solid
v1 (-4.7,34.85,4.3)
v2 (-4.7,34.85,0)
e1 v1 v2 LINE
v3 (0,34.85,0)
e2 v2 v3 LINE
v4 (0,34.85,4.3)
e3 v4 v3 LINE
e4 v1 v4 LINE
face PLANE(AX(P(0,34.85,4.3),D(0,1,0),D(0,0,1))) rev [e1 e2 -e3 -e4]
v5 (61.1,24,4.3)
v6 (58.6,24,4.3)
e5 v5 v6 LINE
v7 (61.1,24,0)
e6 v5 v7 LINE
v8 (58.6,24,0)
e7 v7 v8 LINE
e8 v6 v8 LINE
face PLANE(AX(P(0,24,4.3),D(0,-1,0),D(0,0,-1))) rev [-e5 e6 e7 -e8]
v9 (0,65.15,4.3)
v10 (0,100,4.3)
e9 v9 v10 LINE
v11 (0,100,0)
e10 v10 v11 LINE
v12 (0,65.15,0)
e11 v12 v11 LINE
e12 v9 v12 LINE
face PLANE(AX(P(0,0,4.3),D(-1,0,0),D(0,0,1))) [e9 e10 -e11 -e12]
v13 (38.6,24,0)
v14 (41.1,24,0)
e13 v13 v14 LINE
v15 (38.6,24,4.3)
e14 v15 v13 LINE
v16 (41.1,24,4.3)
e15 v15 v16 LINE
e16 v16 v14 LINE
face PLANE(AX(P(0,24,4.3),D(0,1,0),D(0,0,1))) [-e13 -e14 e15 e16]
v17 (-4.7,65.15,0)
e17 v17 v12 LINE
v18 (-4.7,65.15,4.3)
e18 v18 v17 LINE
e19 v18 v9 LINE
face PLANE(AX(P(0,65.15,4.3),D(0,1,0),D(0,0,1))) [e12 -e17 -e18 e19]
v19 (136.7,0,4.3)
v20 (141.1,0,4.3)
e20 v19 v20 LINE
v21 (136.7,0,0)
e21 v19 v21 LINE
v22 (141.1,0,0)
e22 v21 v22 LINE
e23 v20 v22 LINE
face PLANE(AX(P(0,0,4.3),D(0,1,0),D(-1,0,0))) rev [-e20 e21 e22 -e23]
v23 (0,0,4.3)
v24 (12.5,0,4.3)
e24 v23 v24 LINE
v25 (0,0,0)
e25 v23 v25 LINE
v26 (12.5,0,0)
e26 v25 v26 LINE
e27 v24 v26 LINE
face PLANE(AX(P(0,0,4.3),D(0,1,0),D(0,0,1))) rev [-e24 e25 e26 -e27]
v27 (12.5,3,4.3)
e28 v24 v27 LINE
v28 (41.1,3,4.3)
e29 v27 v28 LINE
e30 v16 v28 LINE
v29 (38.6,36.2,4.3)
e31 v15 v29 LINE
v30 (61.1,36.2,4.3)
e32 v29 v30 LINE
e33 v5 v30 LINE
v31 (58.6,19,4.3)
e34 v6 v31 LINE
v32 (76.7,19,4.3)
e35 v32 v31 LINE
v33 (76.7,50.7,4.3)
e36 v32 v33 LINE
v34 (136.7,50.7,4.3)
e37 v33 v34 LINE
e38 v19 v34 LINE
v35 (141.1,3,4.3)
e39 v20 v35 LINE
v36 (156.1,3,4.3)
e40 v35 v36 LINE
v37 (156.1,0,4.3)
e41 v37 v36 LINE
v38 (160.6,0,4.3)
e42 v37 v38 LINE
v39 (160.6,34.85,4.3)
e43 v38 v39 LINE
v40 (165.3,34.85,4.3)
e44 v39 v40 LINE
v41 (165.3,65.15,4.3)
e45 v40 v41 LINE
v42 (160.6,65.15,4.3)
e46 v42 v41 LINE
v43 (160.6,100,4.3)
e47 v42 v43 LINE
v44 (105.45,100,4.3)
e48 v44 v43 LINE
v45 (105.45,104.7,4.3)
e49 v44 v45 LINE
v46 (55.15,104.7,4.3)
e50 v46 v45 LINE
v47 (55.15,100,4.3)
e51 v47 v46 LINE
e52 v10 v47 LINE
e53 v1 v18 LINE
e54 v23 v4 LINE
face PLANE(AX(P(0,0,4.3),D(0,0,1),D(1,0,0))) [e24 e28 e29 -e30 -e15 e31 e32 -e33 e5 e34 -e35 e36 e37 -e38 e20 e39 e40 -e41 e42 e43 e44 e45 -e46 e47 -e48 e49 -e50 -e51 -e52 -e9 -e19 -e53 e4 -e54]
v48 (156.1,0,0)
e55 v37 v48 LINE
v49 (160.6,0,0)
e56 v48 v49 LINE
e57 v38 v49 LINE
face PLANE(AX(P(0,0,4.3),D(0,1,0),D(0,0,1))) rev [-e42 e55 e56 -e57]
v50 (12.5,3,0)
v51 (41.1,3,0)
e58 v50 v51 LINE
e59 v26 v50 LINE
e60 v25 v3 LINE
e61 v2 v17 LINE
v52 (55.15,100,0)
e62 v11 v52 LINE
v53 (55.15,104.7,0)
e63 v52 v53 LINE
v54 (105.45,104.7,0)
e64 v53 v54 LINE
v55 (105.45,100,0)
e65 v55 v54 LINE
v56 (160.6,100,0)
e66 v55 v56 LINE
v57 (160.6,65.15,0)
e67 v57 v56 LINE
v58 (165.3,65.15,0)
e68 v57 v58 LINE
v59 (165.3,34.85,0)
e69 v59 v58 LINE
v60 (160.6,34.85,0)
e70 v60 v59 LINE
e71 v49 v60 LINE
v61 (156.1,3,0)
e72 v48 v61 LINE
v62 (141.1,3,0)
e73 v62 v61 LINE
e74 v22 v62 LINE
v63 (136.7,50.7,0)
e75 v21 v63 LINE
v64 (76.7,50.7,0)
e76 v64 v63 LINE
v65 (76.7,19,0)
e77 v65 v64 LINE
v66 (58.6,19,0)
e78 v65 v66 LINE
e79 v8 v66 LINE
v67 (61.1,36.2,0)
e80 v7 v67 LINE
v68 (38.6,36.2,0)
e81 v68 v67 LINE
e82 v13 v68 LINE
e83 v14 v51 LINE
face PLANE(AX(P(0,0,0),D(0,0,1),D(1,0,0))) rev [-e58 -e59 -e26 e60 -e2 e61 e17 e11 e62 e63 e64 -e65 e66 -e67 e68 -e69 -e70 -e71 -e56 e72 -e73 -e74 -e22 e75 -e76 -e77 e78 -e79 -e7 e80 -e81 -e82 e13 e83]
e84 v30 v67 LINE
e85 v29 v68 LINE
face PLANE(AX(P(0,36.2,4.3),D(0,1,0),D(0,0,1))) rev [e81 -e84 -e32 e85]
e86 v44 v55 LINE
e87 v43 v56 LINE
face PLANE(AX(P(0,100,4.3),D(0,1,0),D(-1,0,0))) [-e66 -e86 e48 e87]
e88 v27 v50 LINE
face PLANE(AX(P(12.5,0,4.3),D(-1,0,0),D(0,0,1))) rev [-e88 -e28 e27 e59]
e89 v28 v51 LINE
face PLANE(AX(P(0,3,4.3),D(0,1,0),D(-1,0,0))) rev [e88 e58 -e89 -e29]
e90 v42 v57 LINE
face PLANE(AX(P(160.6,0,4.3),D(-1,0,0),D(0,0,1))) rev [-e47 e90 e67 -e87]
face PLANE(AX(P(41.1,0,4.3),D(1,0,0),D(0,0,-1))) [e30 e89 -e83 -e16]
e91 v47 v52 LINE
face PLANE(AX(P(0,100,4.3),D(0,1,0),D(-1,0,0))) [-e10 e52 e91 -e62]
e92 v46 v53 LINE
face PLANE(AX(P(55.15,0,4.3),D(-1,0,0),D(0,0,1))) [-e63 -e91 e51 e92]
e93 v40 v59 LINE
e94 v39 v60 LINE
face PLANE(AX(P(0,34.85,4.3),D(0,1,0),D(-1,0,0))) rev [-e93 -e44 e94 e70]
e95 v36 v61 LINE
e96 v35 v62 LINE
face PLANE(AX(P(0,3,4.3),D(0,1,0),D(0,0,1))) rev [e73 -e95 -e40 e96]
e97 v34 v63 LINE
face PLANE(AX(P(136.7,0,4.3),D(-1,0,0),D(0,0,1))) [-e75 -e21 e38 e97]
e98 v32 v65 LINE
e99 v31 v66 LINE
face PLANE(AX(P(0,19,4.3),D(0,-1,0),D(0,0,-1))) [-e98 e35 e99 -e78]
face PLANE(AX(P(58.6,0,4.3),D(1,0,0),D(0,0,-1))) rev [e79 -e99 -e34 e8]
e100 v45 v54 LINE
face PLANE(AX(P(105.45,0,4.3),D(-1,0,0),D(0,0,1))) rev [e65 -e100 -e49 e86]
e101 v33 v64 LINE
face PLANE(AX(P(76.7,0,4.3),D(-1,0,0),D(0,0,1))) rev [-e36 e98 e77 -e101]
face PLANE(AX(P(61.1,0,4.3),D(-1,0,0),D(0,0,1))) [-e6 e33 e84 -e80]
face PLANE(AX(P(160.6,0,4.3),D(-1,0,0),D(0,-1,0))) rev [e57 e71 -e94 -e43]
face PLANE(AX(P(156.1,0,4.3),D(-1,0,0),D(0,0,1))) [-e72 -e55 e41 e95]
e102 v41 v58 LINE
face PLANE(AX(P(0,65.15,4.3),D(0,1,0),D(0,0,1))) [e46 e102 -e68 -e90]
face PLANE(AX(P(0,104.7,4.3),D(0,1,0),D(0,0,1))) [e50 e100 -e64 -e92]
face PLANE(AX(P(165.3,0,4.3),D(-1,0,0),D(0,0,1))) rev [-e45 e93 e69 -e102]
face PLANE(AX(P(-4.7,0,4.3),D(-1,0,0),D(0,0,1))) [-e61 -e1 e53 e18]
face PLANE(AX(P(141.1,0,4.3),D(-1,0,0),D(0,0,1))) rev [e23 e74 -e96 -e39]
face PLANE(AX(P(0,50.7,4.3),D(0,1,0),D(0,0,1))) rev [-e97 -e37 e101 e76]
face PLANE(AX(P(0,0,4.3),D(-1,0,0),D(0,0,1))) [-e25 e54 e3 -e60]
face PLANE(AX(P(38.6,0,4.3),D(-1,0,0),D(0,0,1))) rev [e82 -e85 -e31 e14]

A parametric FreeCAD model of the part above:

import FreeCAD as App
import Part
import Sketcher
from FreeCAD import Vector
Q = App.Units.Quantity

doc = App.newDocument("Part")
body = doc.addObject("PartDesign::Body", "Body")

# Sketch on XY plane
sketch1 = doc.addObject("Sketcher::SketchObject", "Sketch")
body.addObject(sketch1)
sketch1.AttachmentSupport = (doc.XY_Plane, [""])
sketch1.MapMode = "FlatFace"
sketch1.addGeometry(Part.LineSegment(Vector(0, 34.9, 0), Vector(0, 0, 0)), False)
sketch1.addGeometry(Part.LineSegment(Vector(0, 0, 0), Vector(12.5, 0, 0)), False)
sketch1.addGeometry(Part.LineSegment(Vector(12.5, 0, 0), Vector(12.5, 3, 0)), False)
sketch1.addGeometry(Part.LineSegment(Vector(12.5, 3, 0), Vector(41.1, 3, 0)), False)
sketch1.addGeometry(Part.LineSegment(Vector(41.1, 3, 0), Vector(41.1, 24, 0)), False)
sketch1.addGeometry(Part.LineSegment(Vector(41.1, 24, 0), Vector(38.6, 24, 0)), False)
sketch1.addGeometry(Part.LineSegment(Vector(38.6, 24, 0), Vector(38.6, 36.2, 0)), False)
sketch1.addGeometry(Part.LineSegment(Vector(38.6, 36.2, 0), Vector(61.1, 36.2, 0)), False)
sketch1.addGeometry(Part.LineSegment(Vector(61.1, 36.2, 0), Vector(61.1, 24, 0)), False)
sketch1.addGeometry(Part.LineSegment(Vector(61.1, 24, 0), Vector(58.6, 24, 0)), False)
sketch1.addGeometry(Part.LineSegment(Vector(58.6, 24, 0), Vector(58.6, 19, 0)), False)
sketch1.addGeometry(Part.LineSegment(Vector(58.6, 19, 0), Vector(76.7, 19, 0)), False)
sketch1.addGeometry(Part.LineSegment(Vector(76.7, 19, 0), Vector(76.7, 50.7, 0)), False)
sketch1.addGeometry(Part.LineSegment(Vector(76.7, 50.7, 0), Vector(136.7, 50.7, 0)), False)
sketch1.addGeometry(Part.LineSegment(Vector(136.7, 50.7, 0), Vector(136.7, 0, 0)), False)
sketch1.addGeometry(Part.LineSegment(Vector(136.7, 0, 0), Vector(141.1, 0, 0)), False)
sketch1.addGeometry(Part.LineSegment(Vector(141.1, 0, 0), Vector(141.1, 3, 0)), False)
sketch1.addGeometry(Part.LineSegment(Vector(141.1, 3, 0), Vector(156.1, 3, 0)), False)
sketch1.addGeometry(Part.LineSegment(Vector(156.1, 3, 0), Vector(156.1, 0, 0)), False)
sketch1.addGeometry(Part.LineSegment(Vector(156.1, 0, 0), Vector(160.6, 0, 0)), False)
sketch1.addGeometry(Part.LineSegment(Vector(160.6, 0, 0), Vector(160.6, 34.9, 0)), False)
sketch1.addGeometry(Part.LineSegment(Vector(160.6, 34.9, 0), Vector(165.3, 34.9, 0)), False)
sketch1.addGeometry(Part.LineSegment(Vector(165.3, 34.9, 0), Vector(165.3, 65.2, 0)), False)
sketch1.addGeometry(Part.LineSegment(Vector(165.3, 65.2, 0), Vector(160.6, 65.2, 0)), False)
sketch1.addGeometry(Part.LineSegment(Vector(160.6, 65.2, 0), Vector(160.6, 100, 0)), False)
sketch1.addGeometry(Part.LineSegment(Vector(160.6, 100, 0), Vector(105.5, 100, 0)), False)
sketch1.addGeometry(Part.LineSegment(Vector(105.5, 100, 0), Vector(105.5, 104.7, 0)), False)
sketch1.addGeometry(Part.LineSegment(Vector(105.5, 104.7, 0), Vector(55.1, 104.7, 0)), False)
sketch1.addGeometry(Part.LineSegment(Vector(55.1, 104.7, 0), Vector(55.1, 100, 0)), False)
sketch1.addGeometry(Part.LineSegment(Vector(55.1, 100, 0), Vector(0, 100, 0)), False)
sketch1.addGeometry(Part.LineSegment(Vector(0, 100, 0), Vector(0, 65.2, 0)), False)
sketch1.addGeometry(Part.LineSegment(Vector(0, 65.2, 0), Vector(-4.7, 65.2, 0)), False)
sketch1.addGeometry(Part.LineSegment(Vector(-4.7, 65.2, 0), Vector(-4.7, 34.9, 0)), False)
sketch1.addGeometry(Part.LineSegment(Vector(-4.7, 34.9, 0), Vector(0, 34.9, 0)), False)
sketch1.addConstraint(Sketcher.Constraint("Coincident", 0, 2, 1, 1))
sketch1.addConstraint(Sketcher.Constraint("Coincident", 1, 2, 2, 1))
sketch1.addConstraint(Sketcher.Constraint("Coincident", 2, 2, 3, 1))
sketch1.addConstraint(Sketcher.Constraint("Coincident", 3, 2, 4, 1))
sketch1.addConstraint(Sketcher.Constraint("Coincident", 4, 2, 5, 1))
sketch1.addConstraint(Sketcher.Constraint("Coincident", 5, 2, 6, 1))
sketch1.addConstraint(Sketcher.Constraint("Coincident", 6, 2, 7, 1))
sketch1.addConstraint(Sketcher.Constraint("Coincident", 7, 2, 8, 1))
sketch1.addConstraint(Sketcher.Constraint("Coincident", 8, 2, 9, 1))
sketch1.addConstraint(Sketcher.Constraint("Coincident", 9, 2, 10, 1))
sketch1.addConstraint(Sketcher.Constraint("Coincident", 10, 2, 11, 1))
sketch1.addConstraint(Sketcher.Constraint("Coincident", 11, 2, 12, 1))
sketch1.addConstraint(Sketcher.Constraint("Coincident", 12, 2, 13, 1))
sketch1.addConstraint(Sketcher.Constraint("Coincident", 13, 2, 14, 1))
sketch1.addConstraint(Sketcher.Constraint("Coincident", 14, 2, 15, 1))
sketch1.addConstraint(Sketcher.Constraint("Coincident", 15, 2, 16, 1))
sketch1.addConstraint(Sketcher.Constraint("Coincident", 16, 2, 17, 1))
sketch1.addConstraint(Sketcher.Constraint("Coincident", 17, 2, 18, 1))
sketch1.addConstraint(Sketcher.Constraint("Coincident", 18, 2, 19, 1))
sketch1.addConstraint(Sketcher.Constraint("Coincident", 19, 2, 20, 1))
sketch1.addConstraint(Sketcher.Constraint("Coincident", 20, 2, 21, 1))
sketch1.addConstraint(Sketcher.Constraint("Coincident", 21, 2, 22, 1))
sketch1.addConstraint(Sketcher.Constraint("Coincident", 22, 2, 23, 1))
sketch1.addConstraint(Sketcher.Constraint("Coincident", 23, 2, 24, 1))
sketch1.addConstraint(Sketcher.Constraint("Coincident", 24, 2, 25, 1))
sketch1.addConstraint(Sketcher.Constraint("Coincident", 25, 2, 26, 1))
sketch1.addConstraint(Sketcher.Constraint("Coincident", 26, 2, 27, 1))
sketch1.addConstraint(Sketcher.Constraint("Coincident", 27, 2, 28, 1))
sketch1.addConstraint(Sketcher.Constraint("Coincident", 28, 2, 29, 1))
sketch1.addConstraint(Sketcher.Constraint("Coincident", 29, 2, 30, 1))
sketch1.addConstraint(Sketcher.Constraint("Coincident", 30, 2, 31, 1))
sketch1.addConstraint(Sketcher.Constraint("Coincident", 31, 2, 32, 1))
sketch1.addConstraint(Sketcher.Constraint("Coincident", 32, 2, 33, 1))
sketch1.addConstraint(Sketcher.Constraint("Coincident", 33, 2, 0, 1))
sketch1.addConstraint(Sketcher.Constraint("Vertical", 0))
sketch1.addConstraint(Sketcher.Constraint("Horizontal", 1))
sketch1.addConstraint(Sketcher.Constraint("Vertical", 2))
sketch1.addConstraint(Sketcher.Constraint("Horizontal", 3))
sketch1.addConstraint(Sketcher.Constraint("Vertical", 4))
sketch1.addConstraint(Sketcher.Constraint("Horizontal", 5))
sketch1.addConstraint(Sketcher.Constraint("Vertical", 6))
sketch1.addConstraint(Sketcher.Constraint("Horizontal", 7))
sketch1.addConstraint(Sketcher.Constraint("Vertical", 8))
sketch1.addConstraint(Sketcher.Constraint("Horizontal", 9))
sketch1.addConstraint(Sketcher.Constraint("Vertical", 10))
sketch1.addConstraint(Sketcher.Constraint("Horizontal", 11))
sketch1.addConstraint(Sketcher.Constraint("Vertical", 12))
sketch1.addConstraint(Sketcher.Constraint("Horizontal", 13))
sketch1.addConstraint(Sketcher.Constraint("Vertical", 14))
sketch1.addConstraint(Sketcher.Constraint("Horizontal", 15))
sketch1.addConstraint(Sketcher.Constraint("Vertical", 16))
sketch1.addConstraint(Sketcher.Constraint("Horizontal", 17))
sketch1.addConstraint(Sketcher.Constraint("Vertical", 18))
sketch1.addConstraint(Sketcher.Constraint("Horizontal", 19))
sketch1.addConstraint(Sketcher.Constraint("Vertical", 20))
sketch1.addConstraint(Sketcher.Constraint("Horizontal", 21))
sketch1.addConstraint(Sketcher.Constraint("Vertical", 22))
sketch1.addConstraint(Sketcher.Constraint("Horizontal", 23))
sketch1.addConstraint(Sketcher.Constraint("Vertical", 24))
sketch1.addConstraint(Sketcher.Constraint("Horizontal", 25))
sketch1.addConstraint(Sketcher.Constraint("Vertical", 26))
sketch1.addConstraint(Sketcher.Constraint("Horizontal", 27))
sketch1.addConstraint(Sketcher.Constraint("Vertical", 28))
sketch1.addConstraint(Sketcher.Constraint("Horizontal", 29))
sketch1.addConstraint(Sketcher.Constraint("Vertical", 30))
sketch1.addConstraint(Sketcher.Constraint("Horizontal", 31))
sketch1.addConstraint(Sketcher.Constraint("Vertical", 32))
sketch1.addConstraint(Sketcher.Constraint("Horizontal", 33))
sketch1.addConstraint(Sketcher.Constraint("Coincident", 0, 2, -1, 1))
sketch1.addConstraint(Sketcher.Constraint("PointOnObject", 14, 2, -1))
sketch1.addConstraint(Sketcher.Constraint("PointOnObject", 18, 2, -1))
sketch1.addConstraint(Sketcher.Constraint("PointOnObject", 29, 2, -2))
sketch1.addConstraint(Sketcher.Constraint("Horizontal", 5, 2, 8, 2))
sketch1.addConstraint(Sketcher.Constraint("Horizontal", 3, 2, 16, 2))
sketch1.addConstraint(Sketcher.Constraint("Horizontal", 25, 2, 28, 2))
sketch1.addConstraint(Sketcher.Constraint("Horizontal", 23, 2, 30, 2))
sketch1.addConstraint(Sketcher.Constraint("Horizontal", 21, 2, 32, 2))
sketch1.addConstraint(Sketcher.Constraint("Vertical", 20, 2, 23, 2))
sketch1.addConstraint(Sketcher.Constraint("Equal", 5, 9))
sketch1.addConstraint(Sketcher.Constraint("Equal", 25, 29))
sketch1.addConstraint(Sketcher.Constraint("Equal", 23, 31))
sketch1.addConstraint(Sketcher.Constraint("Equal", 20, 24))
sketch1.addConstraint(Sketcher.Constraint("Equal", 33, 26))
sketch1.addConstraint(Sketcher.Constraint("DistanceX", 13, 1, 13, 2, Q("60 mm")))
sketch1.addConstraint(Sketcher.Constraint("DistanceX", 17, 1, 17, 2, Q("15 mm")))
sketch1.addConstraint(Sketcher.Constraint("DistanceY", 2, 1, 2, 2, Q("3 mm")))
sketch1.addConstraint(Sketcher.Constraint("DistanceY", 4, 1, 4, 2, Q("21 mm")))
sketch1.addConstraint(Sketcher.Constraint("DistanceY", 10, 2, 10, 1, Q("5 mm")))
sketch1.addConstraint(Sketcher.Constraint("DistanceX", 1, 1, 1, 2, Q("12.5 mm")))
sketch1.addConstraint(Sketcher.Constraint("DistanceX", 3, 1, 3, 2, Q("28.6 mm")))
sketch1.addConstraint(Sketcher.Constraint("DistanceX", 5, 2, 5, 1, Q("2.5 mm")))
sketch1.addConstraint(Sketcher.Constraint("DistanceX", 7, 1, 7, 2, Q("22.5 mm")))
sketch1.addConstraint(Sketcher.Constraint("DistanceX", 11, 1, 11, 2, Q("18.1 mm")))
sketch1.addConstraint(Sketcher.Constraint("DistanceX", 15, 1, 15, 2, Q("4.4 mm")))
sketch1.addConstraint(Sketcher.Constraint("DistanceX", 19, 1, 19, 2, Q("4.5 mm")))
sketch1.addConstraint(Sketcher.Constraint("DistanceX", 21, 1, 21, 2, Q("4.7 mm")))
sketch1.addConstraint(Sketcher.Constraint("DistanceX", 27, 2, 27, 1, Q("50.3 mm")))
sketch1.addConstraint(Sketcher.Constraint("DistanceY", 6, 1, 6, 2, Q("12.2 mm")))
sketch1.addConstraint(Sketcher.Constraint("DistanceY", 12, 1, 12, 2, Q("31.7 mm")))
sketch1.addConstraint(Sketcher.Constraint("DistanceY", 22, 1, 22, 2, Q("30.3 mm")))
sketch1.addConstraint(Sketcher.Constraint("DistanceY", -1, 1, 24, 2, Q("100 mm")))
pad1 = doc.addObject("PartDesign::Pad", "Pad")
body.addObject(pad1)
pad1.Profile = sketch1
pad1.Length = 4.3

doc.recompute()
